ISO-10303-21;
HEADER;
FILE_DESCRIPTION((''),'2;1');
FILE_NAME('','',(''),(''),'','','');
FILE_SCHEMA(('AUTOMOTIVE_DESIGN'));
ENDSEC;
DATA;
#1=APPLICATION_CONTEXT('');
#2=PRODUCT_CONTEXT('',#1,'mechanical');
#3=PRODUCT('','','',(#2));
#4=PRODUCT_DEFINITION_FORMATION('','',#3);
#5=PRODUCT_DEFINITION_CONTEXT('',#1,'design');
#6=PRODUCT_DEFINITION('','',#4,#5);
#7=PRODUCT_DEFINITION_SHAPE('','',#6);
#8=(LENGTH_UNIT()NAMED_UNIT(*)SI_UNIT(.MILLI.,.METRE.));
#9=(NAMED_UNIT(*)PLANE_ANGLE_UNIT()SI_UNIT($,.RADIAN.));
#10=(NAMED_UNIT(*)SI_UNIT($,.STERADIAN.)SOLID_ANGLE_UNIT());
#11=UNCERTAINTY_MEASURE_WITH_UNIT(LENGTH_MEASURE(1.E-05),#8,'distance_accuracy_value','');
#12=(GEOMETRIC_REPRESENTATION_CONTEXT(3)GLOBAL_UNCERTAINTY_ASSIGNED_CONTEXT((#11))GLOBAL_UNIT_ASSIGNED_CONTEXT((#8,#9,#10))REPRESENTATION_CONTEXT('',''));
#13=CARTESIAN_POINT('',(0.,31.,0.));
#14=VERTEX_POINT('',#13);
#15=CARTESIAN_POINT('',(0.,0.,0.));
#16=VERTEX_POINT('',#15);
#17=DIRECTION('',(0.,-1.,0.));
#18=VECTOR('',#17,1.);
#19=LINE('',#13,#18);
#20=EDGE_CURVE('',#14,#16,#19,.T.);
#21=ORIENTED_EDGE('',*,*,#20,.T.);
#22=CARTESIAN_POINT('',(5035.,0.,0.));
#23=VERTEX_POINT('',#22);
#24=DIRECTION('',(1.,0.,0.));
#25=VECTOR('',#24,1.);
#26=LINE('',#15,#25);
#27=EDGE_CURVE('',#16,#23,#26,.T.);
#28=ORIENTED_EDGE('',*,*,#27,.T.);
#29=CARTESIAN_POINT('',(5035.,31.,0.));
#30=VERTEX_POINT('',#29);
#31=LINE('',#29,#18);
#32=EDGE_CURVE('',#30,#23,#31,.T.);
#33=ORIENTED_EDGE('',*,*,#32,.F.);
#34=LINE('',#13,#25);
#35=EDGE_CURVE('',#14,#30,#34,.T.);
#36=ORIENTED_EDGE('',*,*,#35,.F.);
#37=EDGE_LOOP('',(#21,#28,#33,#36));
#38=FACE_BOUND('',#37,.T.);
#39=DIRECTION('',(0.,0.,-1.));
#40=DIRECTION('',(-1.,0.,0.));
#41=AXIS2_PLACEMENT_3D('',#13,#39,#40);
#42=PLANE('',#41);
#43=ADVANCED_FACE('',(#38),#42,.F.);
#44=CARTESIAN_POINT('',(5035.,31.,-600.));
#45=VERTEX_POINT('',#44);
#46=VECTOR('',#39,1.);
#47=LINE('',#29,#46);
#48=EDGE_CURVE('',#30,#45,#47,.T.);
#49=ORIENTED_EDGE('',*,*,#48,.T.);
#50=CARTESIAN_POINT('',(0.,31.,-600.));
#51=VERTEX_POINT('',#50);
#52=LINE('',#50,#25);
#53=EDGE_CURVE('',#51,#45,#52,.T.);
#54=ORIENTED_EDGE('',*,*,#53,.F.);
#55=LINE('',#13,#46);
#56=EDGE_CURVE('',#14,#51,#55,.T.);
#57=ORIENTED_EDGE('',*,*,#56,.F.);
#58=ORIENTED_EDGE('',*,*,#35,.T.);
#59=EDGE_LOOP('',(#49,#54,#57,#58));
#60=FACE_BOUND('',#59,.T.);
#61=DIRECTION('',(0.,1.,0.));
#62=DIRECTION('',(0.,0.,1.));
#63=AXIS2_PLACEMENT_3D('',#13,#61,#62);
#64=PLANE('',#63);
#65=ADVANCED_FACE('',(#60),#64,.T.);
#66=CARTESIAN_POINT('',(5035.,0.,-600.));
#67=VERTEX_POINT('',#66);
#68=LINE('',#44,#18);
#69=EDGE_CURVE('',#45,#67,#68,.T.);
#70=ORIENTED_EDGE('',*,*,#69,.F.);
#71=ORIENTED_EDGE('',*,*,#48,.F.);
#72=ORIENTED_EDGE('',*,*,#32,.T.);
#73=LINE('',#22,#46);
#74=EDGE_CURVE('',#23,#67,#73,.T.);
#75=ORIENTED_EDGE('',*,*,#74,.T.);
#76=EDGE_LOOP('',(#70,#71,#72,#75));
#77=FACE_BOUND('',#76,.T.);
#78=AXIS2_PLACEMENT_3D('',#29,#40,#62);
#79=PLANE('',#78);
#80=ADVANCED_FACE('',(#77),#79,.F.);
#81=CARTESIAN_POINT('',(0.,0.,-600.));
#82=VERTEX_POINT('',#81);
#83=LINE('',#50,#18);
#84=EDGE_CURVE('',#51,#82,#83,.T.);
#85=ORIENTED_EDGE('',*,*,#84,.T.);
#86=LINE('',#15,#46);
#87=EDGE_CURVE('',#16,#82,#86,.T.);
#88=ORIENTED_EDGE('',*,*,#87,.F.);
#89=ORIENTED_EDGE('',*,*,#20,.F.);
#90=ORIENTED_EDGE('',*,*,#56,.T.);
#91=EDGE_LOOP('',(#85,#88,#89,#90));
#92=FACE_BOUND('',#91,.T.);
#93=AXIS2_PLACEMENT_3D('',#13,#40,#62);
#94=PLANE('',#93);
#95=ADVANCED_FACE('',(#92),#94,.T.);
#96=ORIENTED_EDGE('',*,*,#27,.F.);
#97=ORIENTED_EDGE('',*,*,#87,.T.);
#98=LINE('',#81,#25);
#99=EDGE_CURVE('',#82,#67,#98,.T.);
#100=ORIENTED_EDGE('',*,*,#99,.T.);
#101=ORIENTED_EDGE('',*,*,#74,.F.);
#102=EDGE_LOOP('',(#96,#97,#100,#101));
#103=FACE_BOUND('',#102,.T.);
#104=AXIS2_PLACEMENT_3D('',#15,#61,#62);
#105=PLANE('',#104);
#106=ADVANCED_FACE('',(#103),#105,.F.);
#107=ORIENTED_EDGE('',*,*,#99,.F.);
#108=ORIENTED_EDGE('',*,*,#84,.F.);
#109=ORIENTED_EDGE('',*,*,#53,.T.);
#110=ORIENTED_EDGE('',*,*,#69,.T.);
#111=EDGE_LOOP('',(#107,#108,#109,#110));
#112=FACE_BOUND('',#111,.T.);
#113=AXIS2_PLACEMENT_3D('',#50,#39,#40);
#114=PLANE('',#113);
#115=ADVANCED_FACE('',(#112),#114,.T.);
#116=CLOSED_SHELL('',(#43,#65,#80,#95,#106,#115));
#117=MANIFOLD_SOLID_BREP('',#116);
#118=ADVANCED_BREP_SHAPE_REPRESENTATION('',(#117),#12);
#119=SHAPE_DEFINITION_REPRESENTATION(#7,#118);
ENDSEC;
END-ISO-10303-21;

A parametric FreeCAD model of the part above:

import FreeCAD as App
import Part
import Sketcher

V = App.Vector
Q = App.Units.Quantity


def add_polygon(sketch, points):
    """Adds a closed chain of lines whose ends are joined by coincident constraints."""
    first, n = sketch.GeometryCount, len(points)
    for a, b in zip(points, points[1:] + points[:1]):
        sketch.addGeometry(Part.LineSegment(App.Vector(*a, 0), App.Vector(*b, 0)), False)
    for i in range(n):
        sketch.addConstraint(Sketcher.Constraint("Coincident", first + i, 2, first + (i + 1) % n, 1))

doc = App.newDocument("Part")
body = doc.addObject("PartDesign::Body", "Body")

# Sketch on XZ plane
sketch1 = body.newObject("Sketcher::SketchObject", "Sketch")
sketch1.AttachmentSupport = (doc.getObject("XZ_Plane"), [""])
sketch1.MapMode = "FlatFace"
add_polygon(sketch1, [(0, -600), (0, 0), (5035, 0), (5035, -600)])  # lines 0-3
sketch1.addConstraint([
    Sketcher.Constraint("Vertical", 0),
    Sketcher.Constraint("Horizontal", 1),
    Sketcher.Constraint("Vertical", 2),
    Sketcher.Constraint("Horizontal", 3),
    Sketcher.Constraint("Coincident", 0, 2, -1, 1),
    Sketcher.Constraint("DistanceX", 1, 1, 1, 2, Q("5035 mm")),
    Sketcher.Constraint("DistanceY", 0, 1, 0, 2, Q("600 mm")),
])
pad1 = body.newObject("PartDesign::Pad", "Pad")
pad1.Profile = sketch1
pad1.Length = 31
pad1.Reversed = True

doc.recompute()
